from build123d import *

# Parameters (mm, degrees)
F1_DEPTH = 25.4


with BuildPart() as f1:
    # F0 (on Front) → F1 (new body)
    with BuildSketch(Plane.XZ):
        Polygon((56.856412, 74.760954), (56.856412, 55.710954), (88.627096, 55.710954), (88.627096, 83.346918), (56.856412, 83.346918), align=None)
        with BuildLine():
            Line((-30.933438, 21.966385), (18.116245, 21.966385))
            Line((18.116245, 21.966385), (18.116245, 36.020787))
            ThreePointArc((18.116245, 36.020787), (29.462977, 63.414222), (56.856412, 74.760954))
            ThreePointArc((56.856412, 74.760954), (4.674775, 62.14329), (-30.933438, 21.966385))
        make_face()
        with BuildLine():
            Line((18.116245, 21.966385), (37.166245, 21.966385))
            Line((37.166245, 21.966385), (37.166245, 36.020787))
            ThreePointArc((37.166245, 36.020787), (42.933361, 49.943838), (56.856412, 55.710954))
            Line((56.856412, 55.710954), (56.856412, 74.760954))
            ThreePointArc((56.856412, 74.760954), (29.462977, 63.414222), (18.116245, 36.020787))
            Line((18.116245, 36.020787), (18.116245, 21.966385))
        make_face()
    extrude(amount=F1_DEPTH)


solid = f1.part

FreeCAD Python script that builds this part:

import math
import FreeCAD as App
import Part
import Sketcher

V = App.Vector
Q = App.Units.Quantity

doc = App.newDocument("Part")
params = doc.addObject("Spreadsheet::Sheet", "Params")
for row, (alias, value) in enumerate([
    ("pad1_length", "1 in"),
], start=1):
    params.set(f"A{row}", alias)
    params.set(f"B{row}", "=" + value)
    params.setAlias(f"B{row}", alias)

body = doc.addObject("PartDesign::Body", "Body")

# Sketch on XZ plane
sketch1 = body.newObject("Sketcher::SketchObject", "Sketch")
sketch1.AttachmentSupport = (doc.getObject("XZ_Plane"), [""])
sketch1.MapMode = "FlatFace"
sketch1.addGeometry(Part.LineSegment(V(57, 56, 0), V(89, 56, 0)), False)
sketch1.addGeometry(Part.LineSegment(V(89, 56, 0), V(89, 83, 0)), False)
sketch1.addGeometry(Part.LineSegment(V(89, 83, 0), V(57, 83, 0)), False)
sketch1.addGeometry(Part.LineSegment(V(57, 83, 0), V(57, 75, 0)), False)
sketch1.addGeometry(Part.ArcOfCircle(Part.Circle(V(51, -15, 0), V(0, 0, 1), 90), math.radians(86), math.radians(156)), False)
sketch1.addGeometry(Part.LineSegment(V(-31, 22, 0), V(37, 22, 0)), False)
sketch1.addGeometry(Part.LineSegment(V(37, 22, 0), V(37, 36, 0)), False)
sketch1.addGeometry(Part.ArcOfCircle(Part.Circle(V(57, 36, 0), V(0, 0, 1), 20), math.radians(90), math.radians(180)), False)
sketch1.addConstraint(Sketcher.Constraint("Coincident", 0, 2, 1, 1))
sketch1.addConstraint(Sketcher.Constraint("Coincident", 1, 2, 2, 1))
sketch1.addConstraint(Sketcher.Constraint("Coincident", 2, 2, 3, 1))
sketch1.addConstraint(Sketcher.Constraint("Coincident", 3, 2, 4, 1))
sketch1.addConstraint(Sketcher.Constraint("Coincident", 4, 2, 5, 1))
sketch1.addConstraint(Sketcher.Constraint("Coincident", 5, 2, 6, 1))
sketch1.addConstraint(Sketcher.Constraint("Tangent", 6, 2, 7, 2))
sketch1.addConstraint(Sketcher.Constraint("Tangent", 7, 1, 0, 1))
sketch1.addConstraint(Sketcher.Constraint("Horizontal", 0))
sketch1.addConstraint(Sketcher.Constraint("Vertical", 1))
sketch1.addConstraint(Sketcher.Constraint("Horizontal", 2))
sketch1.addConstraint(Sketcher.Constraint("Vertical", 3))
sketch1.addConstraint(Sketcher.Constraint("Horizontal", 5))
sketch1.addConstraint(Sketcher.Constraint("Vertical", 6))
sketch1.addConstraint(Sketcher.Constraint("Vertical", 7, 3, 2, 2))
sketch1.addConstraint(Sketcher.Constraint("DistanceY", 0, 2, 3, 2, Q("0.75 in")))
sketch1.addConstraint(Sketcher.Constraint("Radius", 4, 89.621696))
sketch1.addConstraint(Sketcher.Constraint("Radius", 7, 19.690166))
sketch1.addConstraint(Sketcher.Constraint("DistanceX", 0, 1, 0, 2, 31.770684))
sketch1.addConstraint(Sketcher.Constraint("DistanceX", 5, 1, 5, 2, 68.099683))
sketch1.addConstraint(Sketcher.Constraint("DistanceY", 1, 1, 1, 2, 27.635964))
sketch1.addConstraint(Sketcher.Constraint("DistanceY", 6, 1, 6, 2, 14.054402))
sketch1.addConstraint(Sketcher.Constraint("DistanceX", -1, 1, 4, 3, 50.862351))
sketch1.addConstraint(Sketcher.Constraint("DistanceY", 4, 3, -1, 1, 14.66007))
pad1 = body.newObject("PartDesign::Pad", "Pad")
pad1.Profile = sketch1
pad1.setExpression("Length", "Params.pad1_length")

doc.recompute()
